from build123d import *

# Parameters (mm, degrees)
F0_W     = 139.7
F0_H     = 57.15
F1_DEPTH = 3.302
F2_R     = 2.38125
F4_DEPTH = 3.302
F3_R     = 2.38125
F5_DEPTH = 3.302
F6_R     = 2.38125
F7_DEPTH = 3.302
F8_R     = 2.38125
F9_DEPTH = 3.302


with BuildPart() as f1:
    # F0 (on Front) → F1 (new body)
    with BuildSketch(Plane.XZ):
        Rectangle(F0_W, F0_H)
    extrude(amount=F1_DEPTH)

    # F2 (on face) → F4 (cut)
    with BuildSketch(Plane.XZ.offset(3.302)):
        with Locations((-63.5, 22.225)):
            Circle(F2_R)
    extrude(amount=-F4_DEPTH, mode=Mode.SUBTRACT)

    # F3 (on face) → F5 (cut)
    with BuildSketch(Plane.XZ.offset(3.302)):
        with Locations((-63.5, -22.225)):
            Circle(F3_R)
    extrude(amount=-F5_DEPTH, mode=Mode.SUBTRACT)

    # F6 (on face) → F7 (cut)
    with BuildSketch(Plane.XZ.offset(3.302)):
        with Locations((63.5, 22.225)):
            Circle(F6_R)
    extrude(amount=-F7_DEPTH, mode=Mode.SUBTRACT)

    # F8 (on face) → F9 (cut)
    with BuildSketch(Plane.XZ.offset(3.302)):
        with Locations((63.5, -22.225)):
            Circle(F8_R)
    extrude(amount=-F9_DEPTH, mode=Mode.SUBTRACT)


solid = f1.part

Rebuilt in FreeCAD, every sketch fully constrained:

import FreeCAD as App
import Part
import Sketcher
from FreeCAD import Vector
Q = App.Units.Quantity

doc = App.newDocument("Part")
body = doc.addObject("PartDesign::Body", "Body")

# Sketch on XZ plane
sketch1 = body.newObject("Sketcher::SketchObject", "Sketch")
sketch1.AttachmentSupport = (doc.getObject("XZ_Plane"), [""])
sketch1.MapMode = "FlatFace"
sketch1.addGeometry([
    Part.LineSegment(Vector(-70, 29, 0), Vector(-70, -29, 0)),
    Part.LineSegment(Vector(-70, -29, 0), Vector(70, -29, 0)),
    Part.LineSegment(Vector(70, -29, 0), Vector(70, 29, 0)),
    Part.LineSegment(Vector(70, 29, 0), Vector(-70, 29, 0)),
], False)
sketch1.addConstraint([
    Sketcher.Constraint("Coincident", 0, 2, 1, 1),
    Sketcher.Constraint("Coincident", 1, 2, 2, 1),
    Sketcher.Constraint("Coincident", 2, 2, 3, 1),
    Sketcher.Constraint("Coincident", 3, 2, 0, 1),
    Sketcher.Constraint("Vertical", 0),
    Sketcher.Constraint("Horizontal", 1),
    Sketcher.Constraint("Vertical", 2),
    Sketcher.Constraint("Horizontal", 3),
    Sketcher.Constraint("Symmetric", 0, 2, 2, 2, -1, 1),
    Sketcher.Constraint("DistanceX", 1, 1, 1, 2, Q("5.5 in")),
    Sketcher.Constraint("DistanceY", 0, 2, 0, 1, Q("2.25 in")),
])
pad1 = body.newObject("PartDesign::Pad", "Pad")
pad1.Profile = sketch1
pad1.Length = Q("0.13 in")

# Sketch on XZ plane
sketch2 = body.newObject("Sketcher::SketchObject", "Sketch001")
sketch2.AttachmentSupport = (doc.getObject("XZ_Plane"), [""])
sketch2.MapMode = "FlatFace"
sketch2.AttachmentOffset = App.Placement(Vector(0, 0, 0.13 * 25.4), App.Rotation())
sketch2.addGeometry(Part.Circle(Vector(-63.5, 22.2, 0), Vector(0, 0, 1), 2.4), False)
sketch2.addConstraint([
    Sketcher.Constraint("Diameter", 0, Q("0.1875 in")),
    Sketcher.Constraint("DistanceX", 0, 3, -1, 1, Q("2.5 in")),
    Sketcher.Constraint("DistanceY", -1, 1, 0, 3, Q("0.875 in")),
])
pocket1 = body.newObject("PartDesign::Pocket", "Pocket")
pocket1.Profile = sketch2
pocket1.Length = Q("0.13 in")

# Sketch on XZ plane
sketch3 = body.newObject("Sketcher::SketchObject", "Sketch002")
sketch3.AttachmentSupport = (doc.getObject("XZ_Plane"), [""])
sketch3.MapMode = "FlatFace"
sketch3.AttachmentOffset = App.Placement(Vector(0, 0, 0.13 * 25.4), App.Rotation())
sketch3.addGeometry(Part.Circle(Vector(-63.5, -22.2, 0), Vector(0, 0, 1), 2.4), False)
sketch3.addConstraint([
    Sketcher.Constraint("Diameter", 0, Q("0.1875 in")),
    Sketcher.Constraint("DistanceX", 0, 3, -1, 1, Q("2.5 in")),
    Sketcher.Constraint("DistanceY", 0, 3, -1, 1, Q("0.875 in")),
])
pocket2 = body.newObject("PartDesign::Pocket", "Pocket001")
pocket2.Profile = sketch3
pocket2.Length = Q("0.13 in")

# Sketch on XZ plane
sketch4 = body.newObject("Sketcher::SketchObject", "Sketch003")
sketch4.AttachmentSupport = (doc.getObject("XZ_Plane"), [""])
sketch4.MapMode = "FlatFace"
sketch4.AttachmentOffset = App.Placement(Vector(0, 0, 0.13 * 25.4), App.Rotation())
sketch4.addGeometry(Part.Circle(Vector(63.5, 22.2, 0), Vector(0, 0, 1), 2.4), False)
sketch4.addConstraint([
    Sketcher.Constraint("Diameter", 0, Q("0.1875 in")),
    Sketcher.Constraint("DistanceX", -1, 1, 0, 3, Q("2.5 in")),
    Sketcher.Constraint("DistanceY", -1, 1, 0, 3, Q("0.875 in")),
])
pocket3 = body.newObject("PartDesign::Pocket", "Pocket002")
pocket3.Profile = sketch4
pocket3.Length = Q("0.13 in")

# Sketch on XZ plane
sketch5 = body.newObject("Sketcher::SketchObject", "Sketch004")
sketch5.AttachmentSupport = (doc.getObject("XZ_Plane"), [""])
sketch5.MapMode = "FlatFace"
sketch5.AttachmentOffset = App.Placement(Vector(0, 0, 0.13 * 25.4), App.Rotation())
sketch5.addGeometry(Part.Circle(Vector(63.5, -22.2, 0), Vector(0, 0, 1), 2.4), False)
sketch5.addConstraint([
    Sketcher.Constraint("Diameter", 0, Q("0.1875 in")),
    Sketcher.Constraint("DistanceX", -1, 1, 0, 3, Q("2.5 in")),
    Sketcher.Constraint("DistanceY", 0, 3, -1, 1, Q("0.875 in")),
])
pocket4 = body.newObject("PartDesign::Pocket", "Pocket003")
pocket4.Profile = sketch5
pocket4.Length = Q("0.13 in")

doc.recompute()
